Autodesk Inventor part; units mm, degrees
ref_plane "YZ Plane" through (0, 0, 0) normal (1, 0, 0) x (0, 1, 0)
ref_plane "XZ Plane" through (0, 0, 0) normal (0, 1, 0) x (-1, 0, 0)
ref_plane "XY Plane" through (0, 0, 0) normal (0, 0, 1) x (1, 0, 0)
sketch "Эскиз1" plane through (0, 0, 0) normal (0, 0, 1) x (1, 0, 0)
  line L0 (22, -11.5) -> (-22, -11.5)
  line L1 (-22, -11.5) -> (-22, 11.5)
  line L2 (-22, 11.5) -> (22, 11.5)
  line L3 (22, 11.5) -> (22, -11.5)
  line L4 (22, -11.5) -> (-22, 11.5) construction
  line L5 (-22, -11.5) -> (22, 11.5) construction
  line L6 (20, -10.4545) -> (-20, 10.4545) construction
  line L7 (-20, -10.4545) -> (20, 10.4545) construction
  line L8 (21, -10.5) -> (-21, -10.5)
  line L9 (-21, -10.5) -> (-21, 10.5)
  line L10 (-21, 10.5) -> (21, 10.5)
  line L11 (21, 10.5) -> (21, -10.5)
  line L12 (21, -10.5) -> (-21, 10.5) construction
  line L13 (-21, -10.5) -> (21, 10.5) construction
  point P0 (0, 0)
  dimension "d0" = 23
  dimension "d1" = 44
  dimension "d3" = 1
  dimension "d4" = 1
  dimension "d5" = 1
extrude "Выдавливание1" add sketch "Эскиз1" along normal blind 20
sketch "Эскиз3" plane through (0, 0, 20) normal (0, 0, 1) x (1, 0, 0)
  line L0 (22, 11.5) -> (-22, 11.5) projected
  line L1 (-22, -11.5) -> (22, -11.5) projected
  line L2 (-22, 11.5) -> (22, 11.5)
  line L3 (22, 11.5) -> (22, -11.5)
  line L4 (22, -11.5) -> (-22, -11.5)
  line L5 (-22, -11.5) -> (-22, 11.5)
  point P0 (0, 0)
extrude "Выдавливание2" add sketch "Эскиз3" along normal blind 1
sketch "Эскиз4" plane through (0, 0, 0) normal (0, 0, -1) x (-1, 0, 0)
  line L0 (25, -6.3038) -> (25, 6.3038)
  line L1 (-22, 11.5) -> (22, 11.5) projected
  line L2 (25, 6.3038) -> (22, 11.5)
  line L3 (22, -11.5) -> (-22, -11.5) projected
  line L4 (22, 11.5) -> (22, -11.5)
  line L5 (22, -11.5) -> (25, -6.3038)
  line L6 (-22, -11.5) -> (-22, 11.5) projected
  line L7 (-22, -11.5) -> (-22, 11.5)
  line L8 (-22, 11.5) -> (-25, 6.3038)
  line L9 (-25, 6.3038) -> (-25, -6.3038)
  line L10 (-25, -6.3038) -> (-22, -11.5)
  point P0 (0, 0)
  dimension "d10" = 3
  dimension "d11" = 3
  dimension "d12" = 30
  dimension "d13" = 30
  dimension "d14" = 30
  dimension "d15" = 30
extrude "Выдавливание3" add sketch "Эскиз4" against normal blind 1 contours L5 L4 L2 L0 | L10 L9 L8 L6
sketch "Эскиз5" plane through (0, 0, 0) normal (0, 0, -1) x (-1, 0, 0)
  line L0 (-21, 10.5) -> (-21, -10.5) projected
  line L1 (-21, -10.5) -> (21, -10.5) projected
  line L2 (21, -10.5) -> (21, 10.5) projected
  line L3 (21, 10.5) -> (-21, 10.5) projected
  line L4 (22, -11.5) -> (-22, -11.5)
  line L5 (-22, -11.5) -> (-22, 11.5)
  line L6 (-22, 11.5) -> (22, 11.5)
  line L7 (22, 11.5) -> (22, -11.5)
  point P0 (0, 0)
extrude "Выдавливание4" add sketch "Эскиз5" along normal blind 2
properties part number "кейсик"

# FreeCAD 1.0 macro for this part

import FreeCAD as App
import Part
import Sketcher
Q = App.Units.Quantity


def add_polygon(sketch, points):
    """Adds a closed chain of lines whose ends are joined by coincident constraints."""
    first, n = sketch.GeometryCount, len(points)
    for a, b in zip(points, points[1:] + points[:1]):
        sketch.addGeometry(Part.LineSegment(App.Vector(*a, 0), App.Vector(*b, 0)), False)
    for i in range(n):
        sketch.addConstraint(Sketcher.Constraint("Coincident", first + i, 2, first + (i + 1) % n, 1))

doc = App.newDocument("Part")
body = doc.addObject("PartDesign::Body", "Body")

# Sketch on XY plane
sketch1 = doc.addObject("Sketcher::SketchObject", "Sketch")
body.addObject(sketch1)
sketch1.AttachmentSupport = (doc.XY_Plane, [""])
sketch1.MapMode = "FlatFace"
add_polygon(sketch1, [(-22, -12), (22, -12), (22, 12), (-22, 12)])  # lines 0-3
add_polygon(sketch1, [(21, 10), (21, -10), (-21, -10), (-21, 10)])  # lines 4-7
sketch1.addConstraint(Sketcher.Constraint("Horizontal", 0))
sketch1.addConstraint(Sketcher.Constraint("Vertical", 1))
sketch1.addConstraint(Sketcher.Constraint("Horizontal", 2))
sketch1.addConstraint(Sketcher.Constraint("Vertical", 3))
sketch1.addConstraint(Sketcher.Constraint("Vertical", 4))
sketch1.addConstraint(Sketcher.Constraint("Horizontal", 5))
sketch1.addConstraint(Sketcher.Constraint("Vertical", 6))
sketch1.addConstraint(Sketcher.Constraint("Horizontal", 7))
sketch1.addConstraint(Sketcher.Constraint("Symmetric", 0, 2, 2, 2, -1, 1))
sketch1.addConstraint(Sketcher.Constraint("Symmetric", 4, 2, 6, 2, -1, 1))
sketch1.addConstraint(Sketcher.Constraint("DistanceX", 0, 1, 0, 2, 44.0))
sketch1.addConstraint(Sketcher.Constraint("DistanceY", 1, 1, 1, 2, 23.0))
sketch1.addConstraint(Sketcher.Constraint("DistanceX", 4, 2, 0, 2, 1.0))
sketch1.addConstraint(Sketcher.Constraint("DistanceY", 0, 2, 4, 2, 1.0))
pad1 = doc.addObject("PartDesign::Pad", "Pad")
body.addObject(pad1)
pad1.Profile = sketch1
pad1.Length = 20

# Sketch on XY plane
sketch2 = doc.addObject("Sketcher::SketchObject", "Sketch001")
body.addObject(sketch2)
sketch2.AttachmentSupport = (doc.XY_Plane, [""])
sketch2.MapMode = "FlatFace"
sketch2.AttachmentOffset = App.Placement(App.Vector(0, 0, 20), App.Rotation())
add_polygon(sketch2, [(22, -12), (22, 12), (-22, 12), (-22, -12)])  # lines 0-3
sketch2.addConstraint(Sketcher.Constraint("Vertical", 0))
sketch2.addConstraint(Sketcher.Constraint("Horizontal", 1))
sketch2.addConstraint(Sketcher.Constraint("Vertical", 2))
sketch2.addConstraint(Sketcher.Constraint("Horizontal", 3))
sketch2.addConstraint(Sketcher.Constraint("Symmetric", 0, 2, 2, 2, -1, 1))
sketch2.addConstraint(Sketcher.Constraint("DistanceX", 1, 2, 1, 1, 44.0))
sketch2.addConstraint(Sketcher.Constraint("DistanceY", 0, 1, 0, 2, 23.0))
pad2 = doc.addObject("PartDesign::Pad", "Pad001")
body.addObject(pad2)
pad2.Profile = sketch2
pad2.Length = 1

# Sketch on XY plane
sketch3 = doc.addObject("Sketcher::SketchObject", "Sketch002")
body.addObject(sketch3)
sketch3.AttachmentSupport = (doc.XY_Plane, [""])
sketch3.MapMode = "FlatFace"
add_polygon(sketch3, [(-22, -12), (-25, -6), (-25, 6), (-22, 12)])  # lines 0-3
add_polygon(sketch3, [(25, -6), (22, -12), (22, 12), (25, 6)])  # lines 4-7
sketch3.addConstraint(Sketcher.Constraint("Vertical", 1))
sketch3.addConstraint(Sketcher.Constraint("Vertical", 3))
sketch3.addConstraint(Sketcher.Constraint("Vertical", 5))
sketch3.addConstraint(Sketcher.Constraint("Vertical", 7))
sketch3.addConstraint(Sketcher.Constraint("Symmetric", 2, 2, 4, 2, -1, 1))
sketch3.addConstraint(Sketcher.Constraint("Symmetric", 0, 2, 6, 2, -1, 1))
sketch3.addConstraint(Sketcher.Constraint("Parallel", 2, 4))
sketch3.addConstraint(Sketcher.Constraint("Parallel", 0, 6))
sketch3.addConstraint(Sketcher.Constraint("Horizontal", 3, 2, 4, 2))
sketch3.addConstraint(Sketcher.Constraint("Horizontal", 1, 2, 6, 2))
sketch3.addConstraint(Sketcher.Constraint("DistanceX", 1, 2, 2, 2, 3.0))
sketch3.addConstraint(Sketcher.Constraint("DistanceY", 3, 2, 3, 1, 23.0))
sketch3.addConstraint(Sketcher.Constraint("Angle", 0, Q("119.9998 deg")))
sketch3.addConstraint(Sketcher.Constraint("DistanceX", 0, 2, -1, 1, 25.0))
pad3 = doc.addObject("PartDesign::Pad", "Pad002")
body.addObject(pad3)
pad3.Profile = sketch3
pad3.Length = 1

# Sketch on XY plane
sketch4 = doc.addObject("Sketcher::SketchObject", "Sketch003")
body.addObject(sketch4)
sketch4.AttachmentSupport = (doc.XY_Plane, [""])
sketch4.MapMode = "FlatFace"
add_polygon(sketch4, [(22, -12), (-22, -12), (-22, 12), (22, 12)])  # lines 0-3
add_polygon(sketch4, [(21, -10), (21, 10), (-21, 10), (-21, -10)])  # lines 4-7
sketch4.addConstraint(Sketcher.Constraint("Horizontal", 0))
sketch4.addConstraint(Sketcher.Constraint("Vertical", 1))
sketch4.addConstraint(Sketcher.Constraint("Horizontal", 2))
sketch4.addConstraint(Sketcher.Constraint("Vertical", 3))
sketch4.addConstraint(Sketcher.Constraint("Vertical", 4))
sketch4.addConstraint(Sketcher.Constraint("Horizontal", 5))
sketch4.addConstraint(Sketcher.Constraint("Vertical", 6))
sketch4.addConstraint(Sketcher.Constraint("Horizontal", 7))
sketch4.addConstraint(Sketcher.Constraint("Symmetric", 0, 2, 2, 2, -1, 1))
sketch4.addConstraint(Sketcher.Constraint("Symmetric", 4, 2, 6, 2, -1, 1))
sketch4.addConstraint(Sketcher.Constraint("DistanceX", 0, 2, 0, 1, 44.0))
sketch4.addConstraint(Sketcher.Constraint("DistanceX", 5, 2, 5, 1, 42.0))
sketch4.addConstraint(Sketcher.Constraint("DistanceY", 1, 1, 1, 2, 23.0))
sketch4.addConstraint(Sketcher.Constraint("DistanceY", 4, 1, 4, 2, 21.0))
pad4 = doc.addObject("PartDesign::Pad", "Pad003")
body.addObject(pad4)
pad4.Profile = sketch4
pad4.Length = 2
pad4.Reversed = True

doc.recompute()
